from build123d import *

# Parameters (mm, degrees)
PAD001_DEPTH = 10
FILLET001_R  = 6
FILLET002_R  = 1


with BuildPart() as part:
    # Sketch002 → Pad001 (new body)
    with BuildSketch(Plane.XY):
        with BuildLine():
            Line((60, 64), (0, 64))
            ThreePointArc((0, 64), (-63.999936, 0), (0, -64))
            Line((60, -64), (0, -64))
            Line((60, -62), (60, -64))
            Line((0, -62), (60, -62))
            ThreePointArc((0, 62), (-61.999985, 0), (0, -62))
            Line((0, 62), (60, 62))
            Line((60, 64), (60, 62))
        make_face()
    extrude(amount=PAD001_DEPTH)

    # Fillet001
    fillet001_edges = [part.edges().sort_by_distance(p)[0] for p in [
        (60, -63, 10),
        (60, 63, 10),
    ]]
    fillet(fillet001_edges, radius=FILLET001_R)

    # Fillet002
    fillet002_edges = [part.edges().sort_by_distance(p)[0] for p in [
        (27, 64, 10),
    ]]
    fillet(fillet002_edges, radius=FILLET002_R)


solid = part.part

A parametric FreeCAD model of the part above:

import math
import FreeCAD as App
import Part
import Sketcher
from FreeCAD import Vector


def edges_at(feature, points):
    """Names of the edges that pass closest to the given points."""
    edges = feature.Shape.Edges
    near = lambda p: min(range(len(edges)), key=lambda i: edges[i].distToShape(Part.Vertex(*p))[0])
    return sorted({f"Edge{near(p) + 1}" for p in points})

doc = App.newDocument("Part")
params = doc.addObject("Spreadsheet::Sheet", "Params")
for row, (alias, value) in enumerate([
    ("sketch1_radius", "64 mm"),
    ("sketch1_radius2", "62 mm"),
    ("sketch1_width", "60 mm"),
    ("sketch1_width2", "60 mm"),
    ("pad1_length", "10 mm"),
    ("fillet_radius", "6 mm"),
    ("fillet2_radius", "1 mm"),
], start=1):
    params.set(f"A{row}", alias)
    params.set(f"B{row}", "=" + value)
    params.setAlias(f"B{row}", alias)

body = doc.addObject("PartDesign::Body", "Body")

sketch1 = body.newObject("Sketcher::SketchObject", "Sketch")
sketch1.AttachmentSupport = (doc.getObject("XY_Plane"), [""])
sketch1.MapMode = "FlatFace"
sketch1.addGeometry([
    Part.LineSegment(Vector(60, 64, 0), Vector(0, 64, 0)),
    Part.ArcOfCircle(Part.Circle(Vector(0.000064, 0, 0), Vector(0, 0, 1), 64), math.radians(90.000057), math.radians(269.999943)),
    Part.LineSegment(Vector(0, -64, 0), Vector(60, -64, 0)),
    Part.LineSegment(Vector(60, -64, 0), Vector(60, -62, 0)),
    Part.LineSegment(Vector(60, -62, 0), Vector(0, -62, 0)),
    Part.ArcOfCircle(Part.Circle(Vector(0.000015, 0, 0), Vector(0, 0, 1), 62), math.radians(90.000014), math.radians(269.999986)),
    Part.LineSegment(Vector(0, 62, 0), Vector(60, 62, 0)),
    Part.LineSegment(Vector(60, 62, 0), Vector(60, 64, 0)),
], False)
sketch1.addConstraint([
    Sketcher.Constraint("Coincident", 0, 2, 1, 1),
    Sketcher.Constraint("Coincident", 1, 2, 2, 1),
    Sketcher.Constraint("Coincident", 2, 2, 3, 1),
    Sketcher.Constraint("Coincident", 3, 2, 4, 1),
    Sketcher.Constraint("Coincident", 4, 2, 5, 2),
    Sketcher.Constraint("Coincident", 5, 1, 6, 1),
    Sketcher.Constraint("Coincident", 6, 2, 7, 1),
    Sketcher.Constraint("Coincident", 7, 2, 0, 1),
    Sketcher.Constraint("Horizontal", 0),
    Sketcher.Constraint("Horizontal", 2),
    Sketcher.Constraint("Vertical", 3),
    Sketcher.Constraint("Horizontal", 4),
    Sketcher.Constraint("Horizontal", 6),
    Sketcher.Constraint("Vertical", 7),
    Sketcher.Constraint("PointOnObject", 1, 3, -1),
    Sketcher.Constraint("PointOnObject", 5, 3, -1),
    Sketcher.Constraint("PointOnObject", 0, 2, -2),
    Sketcher.Constraint("PointOnObject", 1, 2, -2),
    Sketcher.Constraint("PointOnObject", 4, 2, -2),
    Sketcher.Constraint("PointOnObject", 5, 1, -2),
    Sketcher.Constraint("Radius", 1, 64.0),
    Sketcher.Constraint("Radius", 5, 62.0),
    Sketcher.Constraint("DistanceX", 0, 2, 0, 1, 60.0),
    Sketcher.Constraint("DistanceX", 2, 1, 2, 2, 60.0),
    Sketcher.Constraint("DistanceX", 1, 3, 2, 2, 59.999936),
    Sketcher.Constraint("DistanceX", 5, 3, 2, 2, 59.999985),
])
sketch1.setExpression("Constraints[20]", "Params.sketch1_radius")
sketch1.setExpression("Constraints[21]", "Params.sketch1_radius2")
sketch1.setExpression("Constraints[22]", "Params.sketch1_width")
sketch1.setExpression("Constraints[23]", "Params.sketch1_width2")
pad1 = body.newObject("PartDesign::Pad", "Pad")
pad1.Profile = sketch1
pad1.setExpression("Length", "Params.pad1_length")
doc.recompute()

fillet = body.newObject("PartDesign::Fillet", "Fillet")
fillet.Base = (pad1, edges_at(pad1, [(60, -63, 10), (60, 63, 10)]))
fillet.setExpression("Radius", "Params.fillet_radius")
doc.recompute()

fillet2 = body.newObject("PartDesign::Fillet", "Fillet001")
fillet2.Base = (fillet, edges_at(fillet, [(27, 64, 10)]))
fillet2.setExpression("Radius", "Params.fillet2_radius")

doc.recompute()
